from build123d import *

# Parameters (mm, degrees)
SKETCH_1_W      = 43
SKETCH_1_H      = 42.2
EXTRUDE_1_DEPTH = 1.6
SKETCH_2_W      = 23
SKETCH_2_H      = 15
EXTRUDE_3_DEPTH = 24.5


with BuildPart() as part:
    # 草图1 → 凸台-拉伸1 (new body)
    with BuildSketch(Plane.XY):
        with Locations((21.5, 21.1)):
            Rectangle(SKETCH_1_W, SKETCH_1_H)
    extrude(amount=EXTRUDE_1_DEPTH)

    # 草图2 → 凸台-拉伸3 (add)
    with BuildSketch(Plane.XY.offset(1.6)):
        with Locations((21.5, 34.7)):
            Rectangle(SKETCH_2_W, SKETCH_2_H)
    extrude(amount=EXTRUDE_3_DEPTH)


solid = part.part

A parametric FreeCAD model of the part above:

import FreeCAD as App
import Part
import Sketcher

V = App.Vector

doc = App.newDocument("Part")
body = doc.addObject("PartDesign::Body", "Body")

# Sketch on XY plane
sketch1 = body.newObject("Sketcher::SketchObject", "Sketch")
sketch1.AttachmentSupport = (doc.getObject("XY_Plane"), [""])
sketch1.MapMode = "FlatFace"
sketch1.addGeometry(Part.LineSegment(V(0, 42, 0), V(0, 0, 0)), False)
sketch1.addGeometry(Part.LineSegment(V(0, 0, 0), V(43, 0, 0)), False)
sketch1.addGeometry(Part.LineSegment(V(43, 0, 0), V(43, 42, 0)), False)
sketch1.addGeometry(Part.LineSegment(V(43, 42, 0), V(0, 42, 0)), False)
sketch1.addConstraint(Sketcher.Constraint("Coincident", 0, 2, 1, 1))
sketch1.addConstraint(Sketcher.Constraint("Coincident", 1, 2, 2, 1))
sketch1.addConstraint(Sketcher.Constraint("Coincident", 2, 2, 3, 1))
sketch1.addConstraint(Sketcher.Constraint("Coincident", 3, 2, 0, 1))
sketch1.addConstraint(Sketcher.Constraint("Vertical", 0))
sketch1.addConstraint(Sketcher.Constraint("Horizontal", 1))
sketch1.addConstraint(Sketcher.Constraint("Vertical", 2))
sketch1.addConstraint(Sketcher.Constraint("Horizontal", 3))
sketch1.addConstraint(Sketcher.Constraint("Coincident", 0, 2, -1, 1))
sketch1.addConstraint(Sketcher.Constraint("DistanceX", 1, 1, 1, 2, 43.0))
sketch1.addConstraint(Sketcher.Constraint("DistanceY", 0, 2, 0, 1, 42.2))
pad1 = body.newObject("PartDesign::Pad", "Pad")
pad1.Profile = sketch1
pad1.Length = 1.6

# Sketch on XY plane
sketch2 = body.newObject("Sketcher::SketchObject", "Sketch001")
sketch2.AttachmentSupport = (doc.getObject("XY_Plane"), [""])
sketch2.MapMode = "FlatFace"
sketch2.AttachmentOffset = App.Placement(V(0, 0, 1.6), App.Rotation())
sketch2.addGeometry(Part.LineSegment(V(10, 42, 0), V(10, 27, 0)), False)
sketch2.addGeometry(Part.LineSegment(V(10, 27, 0), V(33, 27, 0)), False)
sketch2.addGeometry(Part.LineSegment(V(33, 27, 0), V(33, 42, 0)), False)
sketch2.addGeometry(Part.LineSegment(V(33, 42, 0), V(10, 42, 0)), False)
sketch2.addConstraint(Sketcher.Constraint("Coincident", 0, 2, 1, 1))
sketch2.addConstraint(Sketcher.Constraint("Coincident", 1, 2, 2, 1))
sketch2.addConstraint(Sketcher.Constraint("Coincident", 2, 2, 3, 1))
sketch2.addConstraint(Sketcher.Constraint("Coincident", 3, 2, 0, 1))
sketch2.addConstraint(Sketcher.Constraint("Vertical", 0))
sketch2.addConstraint(Sketcher.Constraint("Horizontal", 1))
sketch2.addConstraint(Sketcher.Constraint("Vertical", 2))
sketch2.addConstraint(Sketcher.Constraint("Horizontal", 3))
sketch2.addConstraint(Sketcher.Constraint("DistanceX", 1, 1, 1, 2, 23.0))
sketch2.addConstraint(Sketcher.Constraint("DistanceY", 0, 2, 0, 1, 15.0))
sketch2.addConstraint(Sketcher.Constraint("DistanceX", -1, 1, 0, 2, 10.0))
sketch2.addConstraint(Sketcher.Constraint("DistanceY", -1, 1, 0, 2, 27.2))
pad2 = body.newObject("PartDesign::Pad", "Pad001")
pad2.Profile = sketch2
pad2.Length = 24.5

doc.recompute()
